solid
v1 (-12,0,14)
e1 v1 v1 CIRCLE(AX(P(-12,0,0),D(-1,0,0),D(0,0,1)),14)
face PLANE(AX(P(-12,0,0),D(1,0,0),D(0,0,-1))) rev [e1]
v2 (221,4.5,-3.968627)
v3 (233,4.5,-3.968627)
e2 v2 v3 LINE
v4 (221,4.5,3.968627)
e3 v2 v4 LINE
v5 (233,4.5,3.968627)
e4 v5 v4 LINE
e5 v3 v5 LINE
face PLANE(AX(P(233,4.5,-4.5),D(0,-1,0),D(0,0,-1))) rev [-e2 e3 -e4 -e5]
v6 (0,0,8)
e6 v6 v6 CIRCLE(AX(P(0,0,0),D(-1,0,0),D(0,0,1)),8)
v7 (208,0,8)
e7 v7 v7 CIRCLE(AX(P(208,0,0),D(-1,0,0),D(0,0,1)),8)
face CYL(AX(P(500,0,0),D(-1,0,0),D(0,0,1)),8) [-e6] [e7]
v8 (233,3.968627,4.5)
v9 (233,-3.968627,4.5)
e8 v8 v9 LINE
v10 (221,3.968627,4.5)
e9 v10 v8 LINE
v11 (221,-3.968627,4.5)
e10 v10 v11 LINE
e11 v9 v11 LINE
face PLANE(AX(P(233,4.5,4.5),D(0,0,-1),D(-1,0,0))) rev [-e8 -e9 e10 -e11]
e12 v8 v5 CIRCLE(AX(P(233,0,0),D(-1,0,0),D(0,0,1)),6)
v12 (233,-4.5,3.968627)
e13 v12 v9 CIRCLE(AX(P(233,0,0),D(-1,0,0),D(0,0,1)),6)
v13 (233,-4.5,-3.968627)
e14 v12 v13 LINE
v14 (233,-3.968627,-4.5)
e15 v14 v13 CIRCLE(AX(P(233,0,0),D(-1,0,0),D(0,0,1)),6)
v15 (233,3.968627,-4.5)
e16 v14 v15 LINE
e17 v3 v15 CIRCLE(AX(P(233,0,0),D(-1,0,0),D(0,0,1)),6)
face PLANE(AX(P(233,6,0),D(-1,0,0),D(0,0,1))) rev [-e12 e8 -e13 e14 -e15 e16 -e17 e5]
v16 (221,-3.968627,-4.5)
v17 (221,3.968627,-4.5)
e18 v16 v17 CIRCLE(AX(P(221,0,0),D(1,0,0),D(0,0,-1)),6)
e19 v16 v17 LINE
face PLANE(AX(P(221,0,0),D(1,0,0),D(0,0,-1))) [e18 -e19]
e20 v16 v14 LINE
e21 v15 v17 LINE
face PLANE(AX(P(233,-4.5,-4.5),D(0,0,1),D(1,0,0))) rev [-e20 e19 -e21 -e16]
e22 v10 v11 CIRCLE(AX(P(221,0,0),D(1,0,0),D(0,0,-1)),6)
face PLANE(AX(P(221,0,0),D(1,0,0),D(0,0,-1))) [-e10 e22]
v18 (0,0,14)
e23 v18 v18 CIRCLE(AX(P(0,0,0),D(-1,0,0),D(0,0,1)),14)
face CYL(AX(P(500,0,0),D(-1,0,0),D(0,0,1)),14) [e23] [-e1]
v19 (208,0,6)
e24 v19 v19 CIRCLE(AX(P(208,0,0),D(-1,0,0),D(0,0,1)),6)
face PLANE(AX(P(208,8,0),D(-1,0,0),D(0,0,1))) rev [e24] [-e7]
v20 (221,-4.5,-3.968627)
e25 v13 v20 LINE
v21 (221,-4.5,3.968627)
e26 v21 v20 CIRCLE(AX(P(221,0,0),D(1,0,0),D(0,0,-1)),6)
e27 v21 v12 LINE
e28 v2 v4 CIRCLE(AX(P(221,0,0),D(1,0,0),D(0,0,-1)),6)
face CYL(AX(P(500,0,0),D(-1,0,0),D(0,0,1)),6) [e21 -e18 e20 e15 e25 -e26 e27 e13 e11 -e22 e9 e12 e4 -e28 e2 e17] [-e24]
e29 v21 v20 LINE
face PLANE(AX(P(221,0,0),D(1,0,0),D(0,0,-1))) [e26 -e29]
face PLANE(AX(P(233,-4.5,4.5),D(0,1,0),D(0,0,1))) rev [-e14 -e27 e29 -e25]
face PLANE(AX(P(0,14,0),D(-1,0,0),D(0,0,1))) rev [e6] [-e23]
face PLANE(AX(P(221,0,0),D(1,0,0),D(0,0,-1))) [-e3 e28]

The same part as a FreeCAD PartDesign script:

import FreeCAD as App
import Part
import Sketcher

V = App.Vector
Q = App.Units.Quantity

doc = App.newDocument("Part")
body = doc.addObject("PartDesign::Body", "Body")

# Sketch on XY plane
sketch1 = body.newObject("Sketcher::SketchObject", "Sketch")
sketch1.AttachmentSupport = (doc.getObject("XY_Plane"), [""])
sketch1.MapMode = "FlatFace"
sketch1.addGeometry(Part.LineSegment(V(-12, 14, 0), V(-12, 0, 0)), False)
sketch1.addGeometry(Part.LineSegment(V(-12, 0, 0), V(233, 0, 0)), False)
sketch1.addGeometry(Part.LineSegment(V(233, 0, 0), V(233, 6, 0)), False)
sketch1.addGeometry(Part.LineSegment(V(233, 6, 0), V(208, 6, 0)), False)
sketch1.addGeometry(Part.LineSegment(V(208, 6, 0), V(208, 8, 0)), False)
sketch1.addGeometry(Part.LineSegment(V(208, 8, 0), V(0, 8, 0)), False)
sketch1.addGeometry(Part.LineSegment(V(0, 8, 0), V(0, 14, 0)), False)
sketch1.addGeometry(Part.LineSegment(V(0, 14, 0), V(-12, 14, 0)), False)
sketch1.addConstraint(Sketcher.Constraint("Coincident", 0, 2, 1, 1))
sketch1.addConstraint(Sketcher.Constraint("Coincident", 1, 2, 2, 1))
sketch1.addConstraint(Sketcher.Constraint("Coincident", 2, 2, 3, 1))
sketch1.addConstraint(Sketcher.Constraint("Coincident", 3, 2, 4, 1))
sketch1.addConstraint(Sketcher.Constraint("Coincident", 4, 2, 5, 1))
sketch1.addConstraint(Sketcher.Constraint("Coincident", 5, 2, 6, 1))
sketch1.addConstraint(Sketcher.Constraint("Coincident", 6, 2, 7, 1))
sketch1.addConstraint(Sketcher.Constraint("Coincident", 7, 2, 0, 1))
sketch1.addConstraint(Sketcher.Constraint("Vertical", 0))
sketch1.addConstraint(Sketcher.Constraint("Horizontal", 1))
sketch1.addConstraint(Sketcher.Constraint("Vertical", 2))
sketch1.addConstraint(Sketcher.Constraint("Horizontal", 3))
sketch1.addConstraint(Sketcher.Constraint("Vertical", 4))
sketch1.addConstraint(Sketcher.Constraint("Horizontal", 5))
sketch1.addConstraint(Sketcher.Constraint("Vertical", 6))
sketch1.addConstraint(Sketcher.Constraint("Horizontal", 7))
sketch1.addConstraint(Sketcher.Constraint("PointOnObject", 0, 2, -1))
sketch1.addConstraint(Sketcher.Constraint("PointOnObject", 5, 2, -2))
sketch1.addConstraint(Sketcher.Constraint("Equal", 2, 6))
sketch1.addConstraint(Sketcher.Constraint("DistanceX", 1, 1, 1, 2, Q("245 mm")))
sketch1.addConstraint(Sketcher.Constraint("DistanceX", 3, 2, 3, 1, Q("25 mm")))
sketch1.addConstraint(Sketcher.Constraint("DistanceX", 5, 2, 5, 1, Q("208 mm")))
sketch1.addConstraint(Sketcher.Constraint("DistanceY", 0, 2, 0, 1, Q("14 mm")))
sketch1.addConstraint(Sketcher.Constraint("DistanceY", 2, 1, 2, 2, Q("6 mm")))
revolution = body.newObject("PartDesign::Revolution", "Revolution")
revolution.Profile = sketch1
revolution.ReferenceAxis = (sketch1, ["H_Axis"])
revolution.Angle = 360

# Sketch on YZ plane
sketch2 = body.newObject("Sketcher::SketchObject", "Sketch001")
sketch2.AttachmentSupport = (doc.getObject("YZ_Plane"), [""])
sketch2.MapMode = "FlatFace"
sketch2.AttachmentOffset = App.Placement(V(0, 0, 221), App.Rotation())
sketch2.addGeometry(Part.Circle(V(0, 0, 0), V(0, 0, 1), 9), False)
sketch2.addGeometry(Part.LineSegment(V(-4, -4, 0), V(-4, 4, 0)), False)
sketch2.addGeometry(Part.LineSegment(V(-4, 4, 0), V(4, 4, 0)), False)
sketch2.addGeometry(Part.LineSegment(V(4, 4, 0), V(4, -4, 0)), False)
sketch2.addGeometry(Part.LineSegment(V(4, -4, 0), V(-4, -4, 0)), False)
sketch2.addConstraint(Sketcher.Constraint("Coincident", 1, 2, 2, 1))
sketch2.addConstraint(Sketcher.Constraint("Coincident", 2, 2, 3, 1))
sketch2.addConstraint(Sketcher.Constraint("Coincident", 3, 2, 4, 1))
sketch2.addConstraint(Sketcher.Constraint("Coincident", 4, 2, 1, 1))
sketch2.addConstraint(Sketcher.Constraint("Vertical", 1))
sketch2.addConstraint(Sketcher.Constraint("Horizontal", 2))
sketch2.addConstraint(Sketcher.Constraint("Vertical", 3))
sketch2.addConstraint(Sketcher.Constraint("Horizontal", 4))
sketch2.addConstraint(Sketcher.Constraint("Coincident", 0, 3, -1, 1))
sketch2.addConstraint(Sketcher.Constraint("Symmetric", 1, 2, 3, 2, -1, 1))
sketch2.addConstraint(Sketcher.Constraint("Equal", 4, 1))
sketch2.addConstraint(Sketcher.Constraint("Diameter", 0, Q("18 mm")))
sketch2.addConstraint(Sketcher.Constraint("DistanceX", 2, 1, 2, 2, Q("9 mm")))
pocket1 = body.newObject("PartDesign::Pocket", "Pocket")
pocket1.Profile = sketch2
pocket1.Length = 12
pocket1.Reversed = True

doc.recompute()
